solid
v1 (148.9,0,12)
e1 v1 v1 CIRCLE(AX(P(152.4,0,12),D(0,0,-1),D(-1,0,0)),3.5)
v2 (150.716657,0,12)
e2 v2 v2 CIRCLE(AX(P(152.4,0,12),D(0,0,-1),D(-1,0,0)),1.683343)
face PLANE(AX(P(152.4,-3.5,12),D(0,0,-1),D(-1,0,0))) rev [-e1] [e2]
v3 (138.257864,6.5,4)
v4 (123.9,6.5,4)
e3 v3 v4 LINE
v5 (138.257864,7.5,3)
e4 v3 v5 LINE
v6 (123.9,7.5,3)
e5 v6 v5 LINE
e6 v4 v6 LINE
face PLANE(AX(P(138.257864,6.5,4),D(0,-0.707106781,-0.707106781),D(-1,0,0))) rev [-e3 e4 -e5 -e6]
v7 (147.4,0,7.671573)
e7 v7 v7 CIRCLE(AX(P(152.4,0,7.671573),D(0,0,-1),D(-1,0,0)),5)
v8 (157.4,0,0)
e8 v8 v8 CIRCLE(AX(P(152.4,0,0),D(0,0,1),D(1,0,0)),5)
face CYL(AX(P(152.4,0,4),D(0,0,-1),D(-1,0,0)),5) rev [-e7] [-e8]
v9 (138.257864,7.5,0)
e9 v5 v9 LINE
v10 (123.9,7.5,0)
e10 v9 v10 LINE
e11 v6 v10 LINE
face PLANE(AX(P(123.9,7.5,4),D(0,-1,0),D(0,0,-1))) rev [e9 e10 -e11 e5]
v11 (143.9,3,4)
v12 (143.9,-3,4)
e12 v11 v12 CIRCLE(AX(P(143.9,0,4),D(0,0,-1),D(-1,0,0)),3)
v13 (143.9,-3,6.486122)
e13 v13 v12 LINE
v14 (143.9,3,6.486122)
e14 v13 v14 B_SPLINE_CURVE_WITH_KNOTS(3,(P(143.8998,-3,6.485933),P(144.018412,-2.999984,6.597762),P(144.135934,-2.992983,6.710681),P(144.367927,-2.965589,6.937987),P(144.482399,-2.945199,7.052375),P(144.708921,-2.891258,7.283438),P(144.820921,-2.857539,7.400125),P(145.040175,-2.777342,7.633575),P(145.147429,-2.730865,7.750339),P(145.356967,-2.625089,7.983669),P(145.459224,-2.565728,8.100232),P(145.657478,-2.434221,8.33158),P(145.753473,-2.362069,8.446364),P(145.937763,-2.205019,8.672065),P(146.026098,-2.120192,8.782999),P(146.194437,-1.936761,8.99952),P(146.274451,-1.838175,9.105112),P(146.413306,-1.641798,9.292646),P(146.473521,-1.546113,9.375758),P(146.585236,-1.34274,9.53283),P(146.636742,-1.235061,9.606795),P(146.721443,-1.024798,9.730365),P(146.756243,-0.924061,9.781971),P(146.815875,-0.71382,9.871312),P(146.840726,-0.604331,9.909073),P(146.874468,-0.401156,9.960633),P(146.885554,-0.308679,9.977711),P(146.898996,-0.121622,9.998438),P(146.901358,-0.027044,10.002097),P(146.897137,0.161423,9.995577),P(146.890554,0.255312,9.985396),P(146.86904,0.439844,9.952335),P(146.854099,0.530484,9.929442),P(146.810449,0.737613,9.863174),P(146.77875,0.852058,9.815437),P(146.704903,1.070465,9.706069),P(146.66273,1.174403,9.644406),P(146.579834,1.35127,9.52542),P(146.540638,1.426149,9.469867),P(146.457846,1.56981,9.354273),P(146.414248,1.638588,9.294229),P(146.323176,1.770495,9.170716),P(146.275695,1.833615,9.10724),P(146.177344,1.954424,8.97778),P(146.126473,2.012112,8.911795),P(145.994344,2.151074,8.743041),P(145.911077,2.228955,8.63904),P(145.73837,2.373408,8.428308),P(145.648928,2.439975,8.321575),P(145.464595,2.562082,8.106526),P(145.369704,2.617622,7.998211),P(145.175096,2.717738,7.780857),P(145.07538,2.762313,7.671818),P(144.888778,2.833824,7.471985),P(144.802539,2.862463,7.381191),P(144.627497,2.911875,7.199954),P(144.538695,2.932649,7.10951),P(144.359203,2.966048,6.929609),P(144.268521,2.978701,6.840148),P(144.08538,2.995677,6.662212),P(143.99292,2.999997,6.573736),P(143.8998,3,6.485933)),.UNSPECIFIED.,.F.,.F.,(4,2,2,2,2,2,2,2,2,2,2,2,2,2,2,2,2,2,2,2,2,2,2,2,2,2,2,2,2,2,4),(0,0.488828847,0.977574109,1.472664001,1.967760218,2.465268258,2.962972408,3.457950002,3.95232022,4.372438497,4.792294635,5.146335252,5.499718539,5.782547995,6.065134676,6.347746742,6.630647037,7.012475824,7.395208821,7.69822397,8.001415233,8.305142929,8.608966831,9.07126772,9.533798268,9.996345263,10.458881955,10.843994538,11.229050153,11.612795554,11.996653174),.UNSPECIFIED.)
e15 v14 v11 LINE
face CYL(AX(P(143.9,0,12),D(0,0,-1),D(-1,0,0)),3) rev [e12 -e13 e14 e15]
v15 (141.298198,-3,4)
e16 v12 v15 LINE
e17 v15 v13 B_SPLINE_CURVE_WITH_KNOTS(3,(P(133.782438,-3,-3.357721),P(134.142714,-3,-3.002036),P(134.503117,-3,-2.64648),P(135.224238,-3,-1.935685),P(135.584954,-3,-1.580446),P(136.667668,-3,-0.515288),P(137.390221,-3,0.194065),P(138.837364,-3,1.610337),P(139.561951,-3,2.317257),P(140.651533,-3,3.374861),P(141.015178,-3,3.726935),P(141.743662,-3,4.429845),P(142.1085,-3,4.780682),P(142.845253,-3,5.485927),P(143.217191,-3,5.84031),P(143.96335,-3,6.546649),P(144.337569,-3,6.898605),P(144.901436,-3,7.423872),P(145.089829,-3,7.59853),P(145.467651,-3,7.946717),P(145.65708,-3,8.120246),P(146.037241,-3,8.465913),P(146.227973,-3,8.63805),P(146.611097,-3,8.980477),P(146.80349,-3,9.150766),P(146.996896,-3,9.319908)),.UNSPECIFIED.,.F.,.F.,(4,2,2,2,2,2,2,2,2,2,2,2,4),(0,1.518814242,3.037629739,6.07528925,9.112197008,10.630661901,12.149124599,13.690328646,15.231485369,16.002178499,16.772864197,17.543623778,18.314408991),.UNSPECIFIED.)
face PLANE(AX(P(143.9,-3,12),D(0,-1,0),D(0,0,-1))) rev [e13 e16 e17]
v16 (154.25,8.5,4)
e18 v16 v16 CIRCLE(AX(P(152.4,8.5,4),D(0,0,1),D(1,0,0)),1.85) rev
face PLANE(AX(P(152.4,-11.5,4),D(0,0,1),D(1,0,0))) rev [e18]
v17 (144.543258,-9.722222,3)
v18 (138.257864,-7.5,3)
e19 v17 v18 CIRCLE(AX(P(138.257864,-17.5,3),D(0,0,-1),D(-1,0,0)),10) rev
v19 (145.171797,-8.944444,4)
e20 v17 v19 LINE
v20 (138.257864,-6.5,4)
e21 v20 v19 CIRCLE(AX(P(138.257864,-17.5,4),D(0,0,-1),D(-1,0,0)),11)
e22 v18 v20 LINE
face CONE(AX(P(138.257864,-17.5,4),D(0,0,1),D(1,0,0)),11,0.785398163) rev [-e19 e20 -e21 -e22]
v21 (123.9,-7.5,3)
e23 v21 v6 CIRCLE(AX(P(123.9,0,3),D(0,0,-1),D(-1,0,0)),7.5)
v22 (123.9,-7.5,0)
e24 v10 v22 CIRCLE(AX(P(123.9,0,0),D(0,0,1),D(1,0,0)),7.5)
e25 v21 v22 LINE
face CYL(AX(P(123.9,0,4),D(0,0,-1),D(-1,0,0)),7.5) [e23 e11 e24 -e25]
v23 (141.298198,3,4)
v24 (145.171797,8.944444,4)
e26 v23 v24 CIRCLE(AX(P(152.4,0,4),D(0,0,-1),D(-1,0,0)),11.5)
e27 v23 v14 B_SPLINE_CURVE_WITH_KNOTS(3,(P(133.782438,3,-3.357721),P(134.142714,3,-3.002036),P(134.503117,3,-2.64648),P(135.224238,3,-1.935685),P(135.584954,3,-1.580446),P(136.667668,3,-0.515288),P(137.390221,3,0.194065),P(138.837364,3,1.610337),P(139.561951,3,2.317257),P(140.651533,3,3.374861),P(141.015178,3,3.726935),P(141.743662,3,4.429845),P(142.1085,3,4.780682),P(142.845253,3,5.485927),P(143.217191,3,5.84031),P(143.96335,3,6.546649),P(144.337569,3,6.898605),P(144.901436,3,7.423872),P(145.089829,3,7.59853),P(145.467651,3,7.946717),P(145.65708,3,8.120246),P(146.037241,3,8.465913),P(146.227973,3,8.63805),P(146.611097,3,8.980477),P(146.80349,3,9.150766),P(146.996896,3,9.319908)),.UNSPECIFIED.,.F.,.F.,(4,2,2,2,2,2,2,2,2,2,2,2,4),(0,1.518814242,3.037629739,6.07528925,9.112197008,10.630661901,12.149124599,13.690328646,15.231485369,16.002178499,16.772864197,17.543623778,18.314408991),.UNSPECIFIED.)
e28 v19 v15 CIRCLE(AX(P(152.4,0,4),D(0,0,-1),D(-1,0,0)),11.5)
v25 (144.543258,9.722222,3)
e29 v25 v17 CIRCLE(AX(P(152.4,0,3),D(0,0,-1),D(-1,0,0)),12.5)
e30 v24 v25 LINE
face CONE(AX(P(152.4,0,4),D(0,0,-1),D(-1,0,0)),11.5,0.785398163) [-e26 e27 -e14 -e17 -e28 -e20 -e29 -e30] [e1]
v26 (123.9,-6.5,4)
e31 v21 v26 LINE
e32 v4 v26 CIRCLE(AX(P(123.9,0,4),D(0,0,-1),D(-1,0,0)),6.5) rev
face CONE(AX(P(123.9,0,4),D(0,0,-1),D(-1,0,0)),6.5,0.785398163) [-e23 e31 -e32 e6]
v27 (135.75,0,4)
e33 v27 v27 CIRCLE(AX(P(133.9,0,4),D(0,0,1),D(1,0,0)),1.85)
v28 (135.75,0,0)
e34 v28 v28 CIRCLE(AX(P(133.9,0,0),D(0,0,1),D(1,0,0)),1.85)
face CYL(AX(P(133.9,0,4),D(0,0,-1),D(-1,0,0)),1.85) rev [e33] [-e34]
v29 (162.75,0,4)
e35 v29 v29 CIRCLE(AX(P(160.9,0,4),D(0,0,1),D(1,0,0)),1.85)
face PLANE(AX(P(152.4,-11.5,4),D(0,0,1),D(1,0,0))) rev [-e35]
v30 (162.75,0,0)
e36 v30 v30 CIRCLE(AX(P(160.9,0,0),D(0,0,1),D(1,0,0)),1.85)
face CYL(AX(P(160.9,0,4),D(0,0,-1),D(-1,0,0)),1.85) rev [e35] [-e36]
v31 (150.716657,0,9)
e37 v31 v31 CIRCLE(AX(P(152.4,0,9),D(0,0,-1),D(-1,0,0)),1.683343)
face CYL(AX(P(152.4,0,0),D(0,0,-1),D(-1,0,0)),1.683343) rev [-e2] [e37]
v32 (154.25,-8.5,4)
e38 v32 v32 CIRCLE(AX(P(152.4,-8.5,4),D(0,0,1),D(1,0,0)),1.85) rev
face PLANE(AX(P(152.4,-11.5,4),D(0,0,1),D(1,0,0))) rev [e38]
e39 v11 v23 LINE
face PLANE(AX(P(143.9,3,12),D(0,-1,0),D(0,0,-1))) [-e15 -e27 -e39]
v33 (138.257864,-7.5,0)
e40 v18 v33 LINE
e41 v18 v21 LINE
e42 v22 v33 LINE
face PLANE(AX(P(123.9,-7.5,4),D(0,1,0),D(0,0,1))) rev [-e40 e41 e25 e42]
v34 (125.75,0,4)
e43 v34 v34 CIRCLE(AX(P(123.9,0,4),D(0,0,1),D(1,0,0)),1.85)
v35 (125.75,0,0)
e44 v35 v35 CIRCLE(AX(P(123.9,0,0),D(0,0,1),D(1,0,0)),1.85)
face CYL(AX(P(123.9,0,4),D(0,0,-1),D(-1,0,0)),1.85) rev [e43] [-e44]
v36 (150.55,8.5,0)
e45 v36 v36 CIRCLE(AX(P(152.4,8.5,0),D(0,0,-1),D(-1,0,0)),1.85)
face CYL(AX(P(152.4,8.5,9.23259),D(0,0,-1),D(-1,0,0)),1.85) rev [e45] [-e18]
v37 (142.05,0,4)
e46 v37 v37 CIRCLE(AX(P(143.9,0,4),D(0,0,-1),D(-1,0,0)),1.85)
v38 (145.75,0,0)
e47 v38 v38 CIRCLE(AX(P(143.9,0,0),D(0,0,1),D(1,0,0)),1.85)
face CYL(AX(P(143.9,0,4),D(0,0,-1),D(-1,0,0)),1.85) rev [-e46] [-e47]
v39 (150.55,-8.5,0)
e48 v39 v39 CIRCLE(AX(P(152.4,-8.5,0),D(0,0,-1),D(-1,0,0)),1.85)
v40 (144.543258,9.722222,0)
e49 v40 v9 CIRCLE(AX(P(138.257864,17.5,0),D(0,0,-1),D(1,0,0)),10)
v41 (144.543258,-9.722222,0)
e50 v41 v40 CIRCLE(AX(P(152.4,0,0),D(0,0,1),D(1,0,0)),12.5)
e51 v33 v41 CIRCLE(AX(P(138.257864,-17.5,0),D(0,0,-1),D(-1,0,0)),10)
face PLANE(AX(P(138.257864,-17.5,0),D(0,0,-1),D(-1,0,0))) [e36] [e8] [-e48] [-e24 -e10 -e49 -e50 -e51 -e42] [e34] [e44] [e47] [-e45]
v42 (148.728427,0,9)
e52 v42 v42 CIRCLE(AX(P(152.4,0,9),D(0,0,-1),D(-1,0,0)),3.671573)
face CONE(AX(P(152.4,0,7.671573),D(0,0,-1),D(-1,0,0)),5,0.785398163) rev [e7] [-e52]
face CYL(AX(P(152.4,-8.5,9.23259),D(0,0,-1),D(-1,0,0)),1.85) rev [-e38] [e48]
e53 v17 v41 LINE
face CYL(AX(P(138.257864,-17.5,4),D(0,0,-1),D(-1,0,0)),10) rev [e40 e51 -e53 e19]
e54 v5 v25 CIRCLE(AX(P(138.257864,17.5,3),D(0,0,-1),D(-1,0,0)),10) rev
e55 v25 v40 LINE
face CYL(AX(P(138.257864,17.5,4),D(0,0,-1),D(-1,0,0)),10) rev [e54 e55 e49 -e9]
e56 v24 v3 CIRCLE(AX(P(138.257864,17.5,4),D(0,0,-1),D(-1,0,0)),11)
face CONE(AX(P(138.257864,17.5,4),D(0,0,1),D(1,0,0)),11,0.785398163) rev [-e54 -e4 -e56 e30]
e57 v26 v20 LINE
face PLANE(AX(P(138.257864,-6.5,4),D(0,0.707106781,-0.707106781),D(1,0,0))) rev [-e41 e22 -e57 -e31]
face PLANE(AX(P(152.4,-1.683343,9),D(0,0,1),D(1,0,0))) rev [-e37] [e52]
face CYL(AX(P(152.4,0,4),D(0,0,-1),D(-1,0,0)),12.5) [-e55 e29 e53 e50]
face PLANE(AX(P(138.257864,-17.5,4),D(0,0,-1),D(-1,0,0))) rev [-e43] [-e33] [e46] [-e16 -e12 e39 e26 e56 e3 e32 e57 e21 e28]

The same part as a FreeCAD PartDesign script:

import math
import FreeCAD as App
import Part
import Sketcher
Q = App.Units.Quantity


def edges_at(feature, points):
    """Names of the edges that pass closest to the given points."""
    edges = feature.Shape.Edges
    near = lambda p: min(range(len(edges)), key=lambda i: edges[i].distToShape(Part.Vertex(*p))[0])
    return sorted({f"Edge{near(p) + 1}" for p in points})


def add_polygon(sketch, points):
    """Adds a closed chain of lines whose ends are joined by coincident constraints."""
    first, n = sketch.GeometryCount, len(points)
    for a, b in zip(points, points[1:] + points[:1]):
        sketch.addGeometry(Part.LineSegment(App.Vector(*a, 0), App.Vector(*b, 0)), False)
    for i in range(n):
        sketch.addConstraint(Sketcher.Constraint("Coincident", first + i, 2, first + (i + 1) % n, 1))

doc = App.newDocument("Part")
params = doc.addObject("Spreadsheet::Sheet", "Params")
for row, (alias, value) in enumerate([
    ("sketch1_diameter", "10 mm"),
    ("sketch1_radius", "10 mm"),
    ("sketch1_diameter2", "3.7 mm"),
    ("sketch1_radius2", "7.5 mm"),
    ("sketch1_radius3", "12.5 mm"),
    ("pad1_length", "4 mm"),
    ("chamfer_size", "1 mm"),
    ("sketch2_height", "3 mm"),
    ("sketch2_width", "6.5 mm"),
    ("revolution_angle", "360 deg"),
    ("sketch3_radius", "3 mm"),
    ("sketch3_radius2", "11.5 mm"),
    ("sketch4_diameter", "3.7 mm"),
    ("pocket2_length", "4 mm"),
], start=1):
    params.set(f"A{row}", alias)
    params.set(f"B{row}", "=" + value)
    params.setAlias(f"B{row}", alias)

body = doc.addObject("PartDesign::Body", "Body")

sketch1 = body.newObject("Sketcher::SketchObject", "Sketch")
sketch1.AttachmentSupport = (doc.getObject("XY_Plane"), [""])
sketch1.MapMode = "FlatFace"
sketch1.addGeometry(Part.LineSegment(App.Vector(138.257864, 7.5, 0), App.Vector(123.9, 7.5, 0)), False)
sketch1.addGeometry(Part.ArcOfCircle(Part.Circle(App.Vector(123.9, 0, 0), App.Vector(0, 0, 1), 7.5), math.radians(90), math.radians(270)), False)
sketch1.addGeometry(Part.LineSegment(App.Vector(123.9, -7.5, 0), App.Vector(138.257864, -7.5, 0)), False)
sketch1.addGeometry(Part.ArcOfCircle(Part.Circle(App.Vector(138.257864, -17.5, 0), App.Vector(0, 0, 1), 10), math.radians(51.057559), math.radians(90)), False)
sketch1.addGeometry(Part.ArcOfCircle(Part.Circle(App.Vector(152.4, 0, 0), App.Vector(0, 0, 1), 12.5), math.radians(-128.942441), math.radians(128.942441)), False)
sketch1.addGeometry(Part.ArcOfCircle(Part.Circle(App.Vector(138.257864, 17.5, 0), App.Vector(0, 0, 1), 10), math.radians(-90), math.radians(-51.057559)), False)
sketch1.addGeometry(Part.Circle(App.Vector(160.9, 0, 0), App.Vector(0, 0, 1), 1.85), False)
sketch1.addGeometry(Part.Circle(App.Vector(152.4, 0, 0), App.Vector(0, 0, 1), 5), False)
sketch1.addGeometry(Part.Circle(App.Vector(143.9, 0, 0), App.Vector(0, 0, 1), 1.85), False)
sketch1.addGeometry(Part.Circle(App.Vector(133.9, 0, 0), App.Vector(0, 0, 1), 1.85), False)
sketch1.addGeometry(Part.Circle(App.Vector(123.9, 0, 0), App.Vector(0, 0, 1), 1.85), False)
sketch1.addConstraint(Sketcher.Constraint("Tangent", 0, 2, 1, 1))
sketch1.addConstraint(Sketcher.Constraint("Tangent", 1, 2, 2, 1))
sketch1.addConstraint(Sketcher.Constraint("Tangent", 2, 2, 3, 2))
sketch1.addConstraint(Sketcher.Constraint("Tangent", 3, 1, 4, 1))
sketch1.addConstraint(Sketcher.Constraint("Tangent", 4, 2, 5, 2))
sketch1.addConstraint(Sketcher.Constraint("Tangent", 5, 1, 0, 1))
sketch1.addConstraint(Sketcher.Constraint("Horizontal", 0))
sketch1.addConstraint(Sketcher.Constraint("Horizontal", 2))
sketch1.addConstraint(Sketcher.Constraint("Coincident", 7, 3, 4, 3))
sketch1.addConstraint(Sketcher.Constraint("Coincident", 10, 3, 1, 3))
sketch1.addConstraint(Sketcher.Constraint("Equal", 3, 5))
sketch1.addConstraint(Sketcher.Constraint("Equal", 6, 8))
sketch1.addConstraint(Sketcher.Constraint("Equal", 8, 9))
sketch1.addConstraint(Sketcher.Constraint("Equal", 9, 10))
sketch1.addConstraint(Sketcher.Constraint("Symmetric", 3, 3, 5, 3, -1))
sketch1.addConstraint(Sketcher.Constraint("PointOnObject", 6, 3, -1))
sketch1.addConstraint(Sketcher.Constraint("PointOnObject", 8, 3, -1))
sketch1.addConstraint(Sketcher.Constraint("PointOnObject", 9, 3, -1))
sketch1.addConstraint(Sketcher.Constraint("Diameter", 7, 10.0))
sketch1.addConstraint(Sketcher.Constraint("Radius", 3, 10.0))
sketch1.addConstraint(Sketcher.Constraint("Diameter", 6, 3.7))
sketch1.addConstraint(Sketcher.Constraint("Radius", 1, 7.5))
sketch1.addConstraint(Sketcher.Constraint("Radius", 4, 12.5))
sketch1.addConstraint(Sketcher.Constraint("DistanceX", 1, 3, 6, 3, 37.0))
sketch1.addConstraint(Sketcher.Constraint("DistanceX", 8, 3, 6, 3, 17.0))
sketch1.addConstraint(Sketcher.Constraint("DistanceX", 1, 3, 9, 3, 10.0))
sketch1.addConstraint(Sketcher.Constraint("DistanceX", -1, 1, 1, 3, 123.9))
sketch1.addConstraint(Sketcher.Constraint("DistanceX", -1, 1, 4, 3, 152.4))
sketch1.setExpression("Constraints[18]", "Params.sketch1_diameter")
sketch1.setExpression("Constraints[19]", "Params.sketch1_radius")
sketch1.setExpression("Constraints[20]", "Params.sketch1_diameter2")
sketch1.setExpression("Constraints[21]", "Params.sketch1_radius2")
sketch1.setExpression("Constraints[22]", "Params.sketch1_radius3")
pad1 = body.newObject("PartDesign::Pad", "Pad")
pad1.Profile = sketch1
pad1.setExpression("Length", "Params.pad1_length")
doc.recompute()

chamfer = body.newObject("PartDesign::Chamfer", "Chamfer")
chamfer.Base = (pad1, edges_at(pad1, [
    (141.591, 8.072, 4),
    (131.079, 7.5, 4),
    (116.4, 0, 4),
    (131.079, -7.5, 4),
    (141.591, -8.072, 4),
    (164.9, 0, 4),
]))
chamfer.setExpression("Size", "Params.chamfer_size")

sketch2 = body.newObject("Sketcher::SketchObject", "Sketch001")
sketch2.AttachmentSupport = (doc.getObject("YZ_Plane"), [""])
sketch2.MapMode = "FlatFace"
sketch2.AttachmentOffset = App.Placement(App.Vector(0, 0, 152.4), App.Rotation())
add_polygon(sketch2, [(-11.5, 4), (-5, 4), (-5, 7.671573), (-3.671573, 9), (-1.683343, 9), (-1.683343, 12), (-3.5, 12)])
sketch2.addConstraint(Sketcher.Constraint("Horizontal", 0))
sketch2.addConstraint(Sketcher.Constraint("Vertical", 1))
sketch2.addConstraint(Sketcher.Constraint("Horizontal", 3))
sketch2.addConstraint(Sketcher.Constraint("Vertical", 4))
sketch2.addConstraint(Sketcher.Constraint("Horizontal", 5))
sketch2.addConstraint(Sketcher.Constraint("Parallel", 2, 6))
sketch2.addConstraint(Sketcher.Constraint("DistanceY", 4, 1, 4, 2, 3.0))
sketch2.addConstraint(Sketcher.Constraint("Angle", 2, Q("45 deg")))
sketch2.addConstraint(Sketcher.Constraint("DistanceX", 0, 1, 0, 2, 6.5))
sketch2.addConstraint(Sketcher.Constraint("DistanceX", 0, 2, -1, 1, 5.0))
sketch2.addConstraint(Sketcher.Constraint("DistanceY", -1, 1, 0, 2, 4.0))
sketch2.addConstraint(Sketcher.Constraint("DistanceY", -1, 1, 2, 2, 9.0))
sketch2.addConstraint(Sketcher.Constraint("DistanceX", 3, 1, 3, 2, 1.98823))
sketch2.addConstraint(Sketcher.Constraint("Distance", 2, 1.87868))
sketch2.setExpression("Constraints[13]", "Params.sketch2_height")
sketch2.setExpression("Constraints[15]", "Params.sketch2_width")
revolution = body.newObject("PartDesign::Revolution", "Revolution")
revolution.Profile = sketch2
revolution.ReferenceAxis = (sketch2, ["V_Axis"])
revolution.setExpression("Angle", "Params.revolution_angle")

sketch3 = body.newObject("Sketcher::SketchObject", "Sketch002")
sketch3.AttachmentSupport = (doc.getObject("XY_Plane"), [""])
sketch3.MapMode = "FlatFace"
sketch3.AttachmentOffset = App.Placement(App.Vector(0, 0, 4), App.Rotation())
sketch3.addGeometry(Part.LineSegment(App.Vector(143.9, -3, 0), App.Vector(141.298198, -3, 0)), False)
sketch3.addGeometry(Part.ArcOfCircle(Part.Circle(App.Vector(152.4, 0, 0), App.Vector(0, 0, 1), 11.5), math.radians(164.878335), math.radians(195.121665)), False)
sketch3.addGeometry(Part.LineSegment(App.Vector(141.298198, 3, 0), App.Vector(143.9, 3, 0)), False)
sketch3.addGeometry(Part.ArcOfCircle(Part.Circle(App.Vector(143.9, 0, 0), App.Vector(0, 0, 1), 3), math.radians(-90), math.radians(90)), False)
sketch3.addConstraint(Sketcher.Constraint("Coincident", 0, 2, 1, 2))
sketch3.addConstraint(Sketcher.Constraint("Coincident", 1, 1, 2, 1))
sketch3.addConstraint(Sketcher.Constraint("Tangent", 2, 2, 3, 2))
sketch3.addConstraint(Sketcher.Constraint("Tangent", 3, 1, 0, 1))
sketch3.addConstraint(Sketcher.Constraint("Horizontal", 0))
sketch3.addConstraint(Sketcher.Constraint("Horizontal", 2))
sketch3.addConstraint(Sketcher.Constraint("Symmetric", 0, 2, 1, 1, -1))
sketch3.addConstraint(Sketcher.Constraint("Radius", 3, 3.0))
sketch3.addConstraint(Sketcher.Constraint("Radius", 1, 11.5))
sketch3.addConstraint(Sketcher.Constraint("DistanceX", -1, 1, 1, 3, 152.4))
sketch3.addConstraint(Sketcher.Constraint("DistanceX", -1, 1, 3, 3, 143.9))
sketch3.setExpression("Constraints[7]", "Params.sketch3_radius")
sketch3.setExpression("Constraints[8]", "Params.sketch3_radius2")
pocket1 = body.newObject("PartDesign::Pocket", "Pocket")
pocket1.Profile = sketch3
pocket1.Type = "ThroughAll"
pocket1.Reversed = True

sketch4 = body.newObject("Sketcher::SketchObject", "Sketch003")
sketch4.AttachmentSupport = (doc.getObject("XY_Plane"), [""])
sketch4.MapMode = "FlatFace"
sketch4.addGeometry(Part.Circle(App.Vector(152.4, -8.5, 0), App.Vector(0, 0, 1), 1.85), False)
sketch4.addGeometry(Part.Circle(App.Vector(152.4, 8.5, 0), App.Vector(0, 0, 1), 1.85), False)
sketch4.addConstraint(Sketcher.Constraint("Equal", 0, 1))
sketch4.addConstraint(Sketcher.Constraint("Symmetric", 0, 3, 1, 3, -1))
sketch4.addConstraint(Sketcher.Constraint("Diameter", 0, 3.7))
sketch4.addConstraint(Sketcher.Constraint("DistanceY", 0, 3, 1, 3, 17.0))
sketch4.addConstraint(Sketcher.Constraint("DistanceX", -1, 1, 0, 3, 152.4))
sketch4.setExpression("Constraints[2]", "Params.sketch4_diameter")
pocket2 = body.newObject("PartDesign::Pocket", "Pocket001")
pocket2.Profile = sketch4
pocket2.setExpression("Length", "Params.pocket2_length")
pocket2.Reversed = True

doc.recompute()
